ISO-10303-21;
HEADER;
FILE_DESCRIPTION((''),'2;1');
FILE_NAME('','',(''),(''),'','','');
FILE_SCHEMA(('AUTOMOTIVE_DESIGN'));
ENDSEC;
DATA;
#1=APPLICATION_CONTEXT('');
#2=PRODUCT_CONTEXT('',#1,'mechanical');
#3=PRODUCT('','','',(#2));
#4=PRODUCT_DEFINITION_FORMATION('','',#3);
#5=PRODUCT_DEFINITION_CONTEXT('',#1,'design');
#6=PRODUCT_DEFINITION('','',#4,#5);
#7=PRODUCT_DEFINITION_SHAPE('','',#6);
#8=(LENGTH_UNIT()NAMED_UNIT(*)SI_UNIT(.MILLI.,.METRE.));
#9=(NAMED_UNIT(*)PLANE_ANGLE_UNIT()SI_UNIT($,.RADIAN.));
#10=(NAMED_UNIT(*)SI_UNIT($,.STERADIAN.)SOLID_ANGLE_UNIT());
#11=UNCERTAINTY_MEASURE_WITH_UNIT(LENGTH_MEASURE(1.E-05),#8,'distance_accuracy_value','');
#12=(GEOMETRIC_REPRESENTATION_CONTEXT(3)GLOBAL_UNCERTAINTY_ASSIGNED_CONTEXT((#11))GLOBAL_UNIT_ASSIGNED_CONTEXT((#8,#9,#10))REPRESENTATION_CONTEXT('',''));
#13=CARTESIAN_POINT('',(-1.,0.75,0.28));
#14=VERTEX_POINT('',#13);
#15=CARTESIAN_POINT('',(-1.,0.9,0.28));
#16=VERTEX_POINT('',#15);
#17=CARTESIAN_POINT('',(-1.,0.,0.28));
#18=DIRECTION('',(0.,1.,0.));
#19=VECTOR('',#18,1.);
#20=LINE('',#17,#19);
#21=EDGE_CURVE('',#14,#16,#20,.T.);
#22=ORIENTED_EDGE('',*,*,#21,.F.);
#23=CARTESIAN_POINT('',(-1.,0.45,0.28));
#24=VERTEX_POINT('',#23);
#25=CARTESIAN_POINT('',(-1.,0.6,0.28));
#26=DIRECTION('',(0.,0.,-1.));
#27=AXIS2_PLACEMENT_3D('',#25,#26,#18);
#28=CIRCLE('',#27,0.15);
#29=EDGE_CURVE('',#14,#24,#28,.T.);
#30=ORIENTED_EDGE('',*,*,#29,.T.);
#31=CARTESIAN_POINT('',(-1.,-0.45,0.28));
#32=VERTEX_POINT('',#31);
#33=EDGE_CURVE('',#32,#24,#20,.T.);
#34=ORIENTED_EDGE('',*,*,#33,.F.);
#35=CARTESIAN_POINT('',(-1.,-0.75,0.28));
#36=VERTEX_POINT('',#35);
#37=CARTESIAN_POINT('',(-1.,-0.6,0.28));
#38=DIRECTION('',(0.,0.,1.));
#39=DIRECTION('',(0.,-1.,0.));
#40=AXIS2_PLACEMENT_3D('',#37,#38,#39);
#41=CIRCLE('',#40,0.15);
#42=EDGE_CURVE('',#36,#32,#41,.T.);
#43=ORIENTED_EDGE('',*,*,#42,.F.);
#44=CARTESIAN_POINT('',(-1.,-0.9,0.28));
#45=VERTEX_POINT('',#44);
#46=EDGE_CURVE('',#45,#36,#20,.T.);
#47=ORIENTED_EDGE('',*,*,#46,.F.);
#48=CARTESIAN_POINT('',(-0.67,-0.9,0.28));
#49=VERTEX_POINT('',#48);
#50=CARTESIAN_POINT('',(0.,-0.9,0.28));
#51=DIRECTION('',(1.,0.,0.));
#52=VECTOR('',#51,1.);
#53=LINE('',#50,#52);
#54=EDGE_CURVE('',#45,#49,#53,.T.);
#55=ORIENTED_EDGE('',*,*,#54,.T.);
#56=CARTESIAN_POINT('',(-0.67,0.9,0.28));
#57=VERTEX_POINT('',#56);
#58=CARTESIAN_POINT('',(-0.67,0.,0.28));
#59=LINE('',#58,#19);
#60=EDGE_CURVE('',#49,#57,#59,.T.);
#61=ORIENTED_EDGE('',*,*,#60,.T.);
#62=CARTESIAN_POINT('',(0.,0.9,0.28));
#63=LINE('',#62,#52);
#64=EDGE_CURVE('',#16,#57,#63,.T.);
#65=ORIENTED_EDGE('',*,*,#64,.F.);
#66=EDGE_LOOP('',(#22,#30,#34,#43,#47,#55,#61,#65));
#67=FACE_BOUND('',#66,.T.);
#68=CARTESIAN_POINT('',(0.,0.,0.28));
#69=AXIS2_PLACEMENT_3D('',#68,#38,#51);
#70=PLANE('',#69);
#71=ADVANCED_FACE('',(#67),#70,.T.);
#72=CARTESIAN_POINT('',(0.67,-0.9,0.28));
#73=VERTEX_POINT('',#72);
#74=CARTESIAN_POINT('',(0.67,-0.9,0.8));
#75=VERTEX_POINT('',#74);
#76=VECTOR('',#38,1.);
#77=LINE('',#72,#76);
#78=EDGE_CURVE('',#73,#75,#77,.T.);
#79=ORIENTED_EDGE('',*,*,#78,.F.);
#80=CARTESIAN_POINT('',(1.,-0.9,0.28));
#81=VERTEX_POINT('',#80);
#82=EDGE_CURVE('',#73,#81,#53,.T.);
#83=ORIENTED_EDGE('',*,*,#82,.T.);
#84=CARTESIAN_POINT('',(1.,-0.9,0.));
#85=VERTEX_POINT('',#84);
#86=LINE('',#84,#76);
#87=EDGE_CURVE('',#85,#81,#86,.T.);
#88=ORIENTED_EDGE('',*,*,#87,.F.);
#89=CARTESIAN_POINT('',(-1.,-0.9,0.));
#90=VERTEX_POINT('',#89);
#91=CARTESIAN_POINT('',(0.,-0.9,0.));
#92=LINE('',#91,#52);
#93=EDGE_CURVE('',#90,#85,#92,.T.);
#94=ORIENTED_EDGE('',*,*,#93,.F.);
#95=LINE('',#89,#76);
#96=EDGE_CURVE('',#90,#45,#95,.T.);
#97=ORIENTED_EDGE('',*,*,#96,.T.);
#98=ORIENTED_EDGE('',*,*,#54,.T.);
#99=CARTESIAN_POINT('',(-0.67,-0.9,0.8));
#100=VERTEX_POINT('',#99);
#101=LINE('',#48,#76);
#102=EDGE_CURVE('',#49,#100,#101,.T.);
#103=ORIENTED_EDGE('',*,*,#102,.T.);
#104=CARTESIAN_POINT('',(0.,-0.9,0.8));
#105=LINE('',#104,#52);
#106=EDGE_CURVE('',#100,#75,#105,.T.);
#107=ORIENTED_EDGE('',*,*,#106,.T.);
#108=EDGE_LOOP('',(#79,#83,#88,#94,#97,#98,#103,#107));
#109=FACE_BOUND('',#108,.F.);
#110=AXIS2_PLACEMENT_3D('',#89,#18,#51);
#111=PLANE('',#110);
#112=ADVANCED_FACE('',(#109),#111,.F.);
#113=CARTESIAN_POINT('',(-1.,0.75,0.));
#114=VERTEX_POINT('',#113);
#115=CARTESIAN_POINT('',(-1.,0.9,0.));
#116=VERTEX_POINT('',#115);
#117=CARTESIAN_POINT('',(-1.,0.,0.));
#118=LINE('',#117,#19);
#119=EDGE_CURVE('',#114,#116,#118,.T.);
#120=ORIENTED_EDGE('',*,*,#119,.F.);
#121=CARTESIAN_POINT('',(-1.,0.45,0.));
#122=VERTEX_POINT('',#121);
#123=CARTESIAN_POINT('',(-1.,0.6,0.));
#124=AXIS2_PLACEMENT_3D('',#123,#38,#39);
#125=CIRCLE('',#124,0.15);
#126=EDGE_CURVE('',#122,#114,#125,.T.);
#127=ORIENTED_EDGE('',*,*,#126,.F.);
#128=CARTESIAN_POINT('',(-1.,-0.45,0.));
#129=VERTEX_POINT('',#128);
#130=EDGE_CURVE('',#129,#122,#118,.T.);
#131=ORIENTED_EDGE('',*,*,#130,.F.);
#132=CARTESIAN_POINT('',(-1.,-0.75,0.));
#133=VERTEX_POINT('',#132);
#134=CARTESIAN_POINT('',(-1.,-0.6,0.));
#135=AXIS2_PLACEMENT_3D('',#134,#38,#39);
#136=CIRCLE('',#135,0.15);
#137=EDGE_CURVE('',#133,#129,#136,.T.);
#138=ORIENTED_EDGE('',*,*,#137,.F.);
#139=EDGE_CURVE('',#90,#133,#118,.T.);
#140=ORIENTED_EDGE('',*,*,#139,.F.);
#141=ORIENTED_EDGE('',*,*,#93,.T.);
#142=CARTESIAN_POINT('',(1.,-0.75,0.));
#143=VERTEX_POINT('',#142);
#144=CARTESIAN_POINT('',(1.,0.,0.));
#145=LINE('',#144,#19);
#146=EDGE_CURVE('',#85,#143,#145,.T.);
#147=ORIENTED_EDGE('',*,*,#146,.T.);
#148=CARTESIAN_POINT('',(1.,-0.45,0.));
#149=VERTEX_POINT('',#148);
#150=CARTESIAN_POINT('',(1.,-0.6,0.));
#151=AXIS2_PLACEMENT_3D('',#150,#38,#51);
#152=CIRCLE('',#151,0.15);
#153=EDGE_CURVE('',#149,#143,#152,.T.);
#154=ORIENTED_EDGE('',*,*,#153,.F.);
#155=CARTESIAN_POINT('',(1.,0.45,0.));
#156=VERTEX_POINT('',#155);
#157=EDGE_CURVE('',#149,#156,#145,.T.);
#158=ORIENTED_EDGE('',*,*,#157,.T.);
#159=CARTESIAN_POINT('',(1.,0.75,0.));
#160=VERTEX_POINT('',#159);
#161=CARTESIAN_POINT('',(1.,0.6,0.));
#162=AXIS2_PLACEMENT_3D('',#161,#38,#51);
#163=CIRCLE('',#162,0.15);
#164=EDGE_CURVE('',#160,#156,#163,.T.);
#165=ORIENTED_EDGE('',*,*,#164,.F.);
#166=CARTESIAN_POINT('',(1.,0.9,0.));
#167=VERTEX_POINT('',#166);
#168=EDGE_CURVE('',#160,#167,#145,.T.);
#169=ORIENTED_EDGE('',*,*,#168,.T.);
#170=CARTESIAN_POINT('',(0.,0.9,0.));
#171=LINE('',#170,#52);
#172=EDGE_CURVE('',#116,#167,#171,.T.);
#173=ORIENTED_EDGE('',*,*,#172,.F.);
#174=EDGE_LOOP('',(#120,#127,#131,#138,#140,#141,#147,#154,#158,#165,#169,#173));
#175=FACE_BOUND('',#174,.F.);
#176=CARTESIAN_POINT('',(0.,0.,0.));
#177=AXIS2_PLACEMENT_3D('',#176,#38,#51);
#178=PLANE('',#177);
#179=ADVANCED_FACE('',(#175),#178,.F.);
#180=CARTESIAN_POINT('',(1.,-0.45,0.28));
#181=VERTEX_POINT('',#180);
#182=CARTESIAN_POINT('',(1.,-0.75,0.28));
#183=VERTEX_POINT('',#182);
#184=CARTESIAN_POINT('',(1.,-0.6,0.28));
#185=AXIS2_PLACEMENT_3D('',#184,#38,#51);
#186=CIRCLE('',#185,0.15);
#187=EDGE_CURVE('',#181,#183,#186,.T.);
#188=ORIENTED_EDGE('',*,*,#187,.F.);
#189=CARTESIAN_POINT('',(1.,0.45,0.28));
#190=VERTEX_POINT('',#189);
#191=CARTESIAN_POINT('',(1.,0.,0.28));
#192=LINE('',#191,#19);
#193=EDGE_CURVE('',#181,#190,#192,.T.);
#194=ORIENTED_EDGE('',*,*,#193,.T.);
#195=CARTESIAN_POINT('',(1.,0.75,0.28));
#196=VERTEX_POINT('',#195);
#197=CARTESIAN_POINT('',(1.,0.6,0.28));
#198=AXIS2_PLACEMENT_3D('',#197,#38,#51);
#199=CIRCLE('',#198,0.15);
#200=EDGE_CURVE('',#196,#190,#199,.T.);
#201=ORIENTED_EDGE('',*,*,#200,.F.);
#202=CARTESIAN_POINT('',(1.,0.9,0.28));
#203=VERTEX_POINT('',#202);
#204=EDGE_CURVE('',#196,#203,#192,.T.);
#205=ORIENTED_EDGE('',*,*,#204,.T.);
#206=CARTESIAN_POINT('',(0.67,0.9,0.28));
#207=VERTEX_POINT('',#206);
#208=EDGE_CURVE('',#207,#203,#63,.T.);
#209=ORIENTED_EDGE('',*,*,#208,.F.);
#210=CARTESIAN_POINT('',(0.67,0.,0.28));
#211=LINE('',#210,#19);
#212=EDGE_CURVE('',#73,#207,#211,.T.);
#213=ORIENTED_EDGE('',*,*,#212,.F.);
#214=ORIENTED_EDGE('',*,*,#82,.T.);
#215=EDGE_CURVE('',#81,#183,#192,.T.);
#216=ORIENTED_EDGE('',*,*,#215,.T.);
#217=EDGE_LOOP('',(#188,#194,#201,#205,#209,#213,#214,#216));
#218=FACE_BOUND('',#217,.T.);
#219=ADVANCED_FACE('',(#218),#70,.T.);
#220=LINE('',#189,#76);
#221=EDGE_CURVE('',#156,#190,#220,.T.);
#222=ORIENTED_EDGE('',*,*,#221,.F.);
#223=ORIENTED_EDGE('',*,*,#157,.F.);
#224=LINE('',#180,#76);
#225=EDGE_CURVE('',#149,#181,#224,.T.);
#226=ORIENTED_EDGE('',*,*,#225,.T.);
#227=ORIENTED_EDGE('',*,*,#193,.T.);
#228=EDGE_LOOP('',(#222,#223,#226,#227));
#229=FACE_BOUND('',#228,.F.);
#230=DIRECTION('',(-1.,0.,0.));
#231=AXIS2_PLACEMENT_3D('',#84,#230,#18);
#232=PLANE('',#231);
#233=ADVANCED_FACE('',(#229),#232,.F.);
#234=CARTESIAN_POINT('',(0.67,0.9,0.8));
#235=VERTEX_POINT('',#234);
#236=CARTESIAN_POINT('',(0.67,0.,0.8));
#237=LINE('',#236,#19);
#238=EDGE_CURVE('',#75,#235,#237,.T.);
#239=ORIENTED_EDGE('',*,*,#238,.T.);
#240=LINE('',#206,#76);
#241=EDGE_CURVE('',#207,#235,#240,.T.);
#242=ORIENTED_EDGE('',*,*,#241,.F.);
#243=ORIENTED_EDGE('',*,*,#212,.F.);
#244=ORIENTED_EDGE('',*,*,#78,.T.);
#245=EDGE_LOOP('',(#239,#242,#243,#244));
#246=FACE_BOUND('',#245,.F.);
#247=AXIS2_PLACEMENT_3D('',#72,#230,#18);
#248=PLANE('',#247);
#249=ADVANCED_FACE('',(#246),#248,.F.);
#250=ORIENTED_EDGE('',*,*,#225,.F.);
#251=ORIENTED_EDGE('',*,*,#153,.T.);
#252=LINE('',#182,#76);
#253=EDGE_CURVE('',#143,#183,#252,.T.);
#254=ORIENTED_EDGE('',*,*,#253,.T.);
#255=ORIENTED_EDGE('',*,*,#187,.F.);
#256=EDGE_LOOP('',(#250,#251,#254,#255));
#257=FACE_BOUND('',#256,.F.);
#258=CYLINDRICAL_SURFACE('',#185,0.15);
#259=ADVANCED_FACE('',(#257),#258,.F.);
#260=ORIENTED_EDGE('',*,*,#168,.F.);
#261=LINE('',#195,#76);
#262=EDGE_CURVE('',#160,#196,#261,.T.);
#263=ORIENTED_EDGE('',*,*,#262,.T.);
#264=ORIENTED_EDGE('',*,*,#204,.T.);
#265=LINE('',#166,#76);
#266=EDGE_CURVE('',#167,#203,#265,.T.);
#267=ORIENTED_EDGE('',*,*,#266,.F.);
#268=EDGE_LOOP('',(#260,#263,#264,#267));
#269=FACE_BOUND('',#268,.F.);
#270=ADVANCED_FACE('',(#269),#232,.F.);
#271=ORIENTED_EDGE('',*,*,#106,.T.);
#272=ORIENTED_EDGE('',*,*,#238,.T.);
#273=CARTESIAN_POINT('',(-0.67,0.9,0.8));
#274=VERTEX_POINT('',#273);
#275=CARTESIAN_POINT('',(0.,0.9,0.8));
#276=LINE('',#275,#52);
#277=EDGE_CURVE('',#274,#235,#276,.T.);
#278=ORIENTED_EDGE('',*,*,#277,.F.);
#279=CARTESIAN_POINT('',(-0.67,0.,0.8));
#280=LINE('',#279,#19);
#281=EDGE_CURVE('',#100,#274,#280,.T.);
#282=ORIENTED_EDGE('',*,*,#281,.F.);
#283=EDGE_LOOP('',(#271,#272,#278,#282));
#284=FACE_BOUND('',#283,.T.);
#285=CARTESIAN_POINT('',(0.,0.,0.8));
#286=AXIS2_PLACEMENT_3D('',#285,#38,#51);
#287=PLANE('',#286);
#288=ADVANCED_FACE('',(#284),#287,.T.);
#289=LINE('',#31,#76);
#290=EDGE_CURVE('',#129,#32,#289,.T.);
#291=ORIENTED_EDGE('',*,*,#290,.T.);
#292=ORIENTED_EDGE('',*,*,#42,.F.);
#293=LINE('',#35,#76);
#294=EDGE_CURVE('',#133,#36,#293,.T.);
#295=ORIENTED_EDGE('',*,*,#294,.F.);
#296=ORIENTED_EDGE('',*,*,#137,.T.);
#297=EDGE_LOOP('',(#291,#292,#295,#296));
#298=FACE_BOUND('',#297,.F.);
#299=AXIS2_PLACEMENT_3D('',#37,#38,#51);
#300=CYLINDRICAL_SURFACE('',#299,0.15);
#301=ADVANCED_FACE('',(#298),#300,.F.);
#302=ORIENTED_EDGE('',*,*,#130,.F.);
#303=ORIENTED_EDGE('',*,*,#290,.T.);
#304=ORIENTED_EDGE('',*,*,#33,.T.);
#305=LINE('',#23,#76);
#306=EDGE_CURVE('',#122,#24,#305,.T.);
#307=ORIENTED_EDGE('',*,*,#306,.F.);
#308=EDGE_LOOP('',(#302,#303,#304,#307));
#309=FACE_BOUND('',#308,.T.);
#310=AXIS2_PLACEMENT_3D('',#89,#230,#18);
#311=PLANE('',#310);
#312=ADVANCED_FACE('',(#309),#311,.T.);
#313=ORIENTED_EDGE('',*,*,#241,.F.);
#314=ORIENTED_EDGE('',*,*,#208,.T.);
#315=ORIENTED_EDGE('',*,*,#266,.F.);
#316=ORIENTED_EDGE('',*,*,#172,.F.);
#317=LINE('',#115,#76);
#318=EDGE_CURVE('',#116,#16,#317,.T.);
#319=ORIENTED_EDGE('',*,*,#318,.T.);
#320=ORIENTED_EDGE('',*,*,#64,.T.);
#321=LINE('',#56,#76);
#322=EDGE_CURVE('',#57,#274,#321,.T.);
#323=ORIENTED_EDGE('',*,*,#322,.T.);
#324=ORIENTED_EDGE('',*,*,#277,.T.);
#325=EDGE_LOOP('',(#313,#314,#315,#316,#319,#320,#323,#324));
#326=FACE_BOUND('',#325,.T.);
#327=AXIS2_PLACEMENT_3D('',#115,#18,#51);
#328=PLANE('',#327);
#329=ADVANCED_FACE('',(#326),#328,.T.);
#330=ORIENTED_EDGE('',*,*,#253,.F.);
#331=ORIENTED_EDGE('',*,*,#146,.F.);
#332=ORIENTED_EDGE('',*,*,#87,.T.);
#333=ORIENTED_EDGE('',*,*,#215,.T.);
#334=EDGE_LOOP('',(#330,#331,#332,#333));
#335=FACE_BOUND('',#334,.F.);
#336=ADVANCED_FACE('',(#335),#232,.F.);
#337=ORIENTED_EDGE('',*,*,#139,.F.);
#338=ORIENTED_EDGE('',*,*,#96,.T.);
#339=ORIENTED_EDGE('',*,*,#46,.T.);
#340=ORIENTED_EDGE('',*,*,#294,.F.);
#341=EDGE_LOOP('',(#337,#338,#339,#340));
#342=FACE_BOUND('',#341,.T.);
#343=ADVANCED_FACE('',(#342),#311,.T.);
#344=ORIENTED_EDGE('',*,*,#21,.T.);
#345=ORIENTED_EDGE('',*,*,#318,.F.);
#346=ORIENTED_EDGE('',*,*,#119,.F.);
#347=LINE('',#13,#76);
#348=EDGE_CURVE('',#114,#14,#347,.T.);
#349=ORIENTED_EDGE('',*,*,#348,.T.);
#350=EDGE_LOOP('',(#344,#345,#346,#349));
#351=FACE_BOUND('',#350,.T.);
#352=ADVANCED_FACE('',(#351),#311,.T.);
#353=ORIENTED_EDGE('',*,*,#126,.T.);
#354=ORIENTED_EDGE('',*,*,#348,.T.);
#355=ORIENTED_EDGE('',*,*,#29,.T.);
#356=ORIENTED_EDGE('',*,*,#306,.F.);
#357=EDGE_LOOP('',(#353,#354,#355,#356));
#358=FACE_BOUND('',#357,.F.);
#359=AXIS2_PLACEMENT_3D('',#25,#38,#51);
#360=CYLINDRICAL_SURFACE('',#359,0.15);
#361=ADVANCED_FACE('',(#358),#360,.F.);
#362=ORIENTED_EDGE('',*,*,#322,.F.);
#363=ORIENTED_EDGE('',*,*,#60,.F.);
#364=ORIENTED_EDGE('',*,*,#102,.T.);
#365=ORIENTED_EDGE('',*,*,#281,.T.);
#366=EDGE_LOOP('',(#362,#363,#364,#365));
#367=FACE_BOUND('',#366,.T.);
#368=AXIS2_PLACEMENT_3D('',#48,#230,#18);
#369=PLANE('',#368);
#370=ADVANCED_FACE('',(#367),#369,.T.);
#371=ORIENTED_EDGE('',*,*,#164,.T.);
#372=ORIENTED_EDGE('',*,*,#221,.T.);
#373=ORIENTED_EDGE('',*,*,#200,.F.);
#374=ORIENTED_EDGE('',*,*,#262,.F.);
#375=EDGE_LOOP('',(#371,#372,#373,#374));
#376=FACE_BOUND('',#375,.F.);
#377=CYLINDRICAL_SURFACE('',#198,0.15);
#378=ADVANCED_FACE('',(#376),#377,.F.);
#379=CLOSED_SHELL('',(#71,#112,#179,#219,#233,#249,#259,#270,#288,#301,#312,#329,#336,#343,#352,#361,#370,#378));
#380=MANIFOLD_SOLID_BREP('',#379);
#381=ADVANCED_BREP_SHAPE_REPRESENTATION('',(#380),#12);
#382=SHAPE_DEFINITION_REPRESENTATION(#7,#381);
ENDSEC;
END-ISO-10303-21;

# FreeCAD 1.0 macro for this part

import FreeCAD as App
import Part
import Sketcher

V = App.Vector
Q = App.Units.Quantity

doc = App.newDocument("Part")
body = doc.addObject("PartDesign::Body", "Body")

sketch1 = body.newObject("Sketcher::SketchObject", "Sketch")
sketch1.AttachmentSupport = (doc.getObject("XY_Plane"), [""])
sketch1.MapMode = "FlatFace"
sketch1.addGeometry(Part.LineSegment(V(-1, 0.9, 0), V(-1, -0.9, 0)), False)
sketch1.addGeometry(Part.LineSegment(V(-1, -0.9, 0), V(1, -0.9, 0)), False)
sketch1.addGeometry(Part.LineSegment(V(1, -0.9, 0), V(1, 0.9, 0)), False)
sketch1.addGeometry(Part.LineSegment(V(1, 0.9, 0), V(-1, 0.9, 0)), False)
sketch1.addConstraint(Sketcher.Constraint("Coincident", 0, 2, 1, 1))
sketch1.addConstraint(Sketcher.Constraint("Coincident", 1, 2, 2, 1))
sketch1.addConstraint(Sketcher.Constraint("Coincident", 2, 2, 3, 1))
sketch1.addConstraint(Sketcher.Constraint("Coincident", 3, 2, 0, 1))
sketch1.addConstraint(Sketcher.Constraint("Vertical", 0))
sketch1.addConstraint(Sketcher.Constraint("Horizontal", 1))
sketch1.addConstraint(Sketcher.Constraint("Vertical", 2))
sketch1.addConstraint(Sketcher.Constraint("Horizontal", 3))
sketch1.addConstraint(Sketcher.Constraint("Symmetric", 0, 2, 2, 2, -1, 1))
sketch1.addConstraint(Sketcher.Constraint("DistanceX", 1, 1, 1, 2, Q("2 mm")))
sketch1.addConstraint(Sketcher.Constraint("DistanceY", 0, 2, 0, 1, Q("1.8 mm")))
pad1 = body.newObject("PartDesign::Pad", "Pad")
pad1.Profile = sketch1
pad1.Length = 0.28

sketch2 = body.newObject("Sketcher::SketchObject", "Sketch001")
sketch2.AttachmentSupport = (doc.getObject("XY_Plane"), [""])
sketch2.MapMode = "FlatFace"
sketch2.AttachmentOffset = App.Placement(V(0, 0, 0.28), App.Rotation())
sketch2.addGeometry(Part.LineSegment(V(-0.7, 0.9, 0), V(-0.7, -0.9, 0)), False)
sketch2.addGeometry(Part.LineSegment(V(-0.7, -0.9, 0), V(0.7, -0.9, 0)), False)
sketch2.addGeometry(Part.LineSegment(V(0.7, -0.9, 0), V(0.7, 0.9, 0)), False)
sketch2.addGeometry(Part.LineSegment(V(0.7, 0.9, 0), V(-0.7, 0.9, 0)), False)
sketch2.addConstraint(Sketcher.Constraint("Coincident", 0, 2, 1, 1))
sketch2.addConstraint(Sketcher.Constraint("Coincident", 1, 2, 2, 1))
sketch2.addConstraint(Sketcher.Constraint("Coincident", 2, 2, 3, 1))
sketch2.addConstraint(Sketcher.Constraint("Coincident", 3, 2, 0, 1))
sketch2.addConstraint(Sketcher.Constraint("Vertical", 0))
sketch2.addConstraint(Sketcher.Constraint("Horizontal", 1))
sketch2.addConstraint(Sketcher.Constraint("Vertical", 2))
sketch2.addConstraint(Sketcher.Constraint("Horizontal", 3))
sketch2.addConstraint(Sketcher.Constraint("Symmetric", 0, 2, 2, 2, -1, 1))
sketch2.addConstraint(Sketcher.Constraint("DistanceY", 0, 2, 0, 1, Q("1.8 mm")))
sketch2.addConstraint(Sketcher.Constraint("DistanceX", 1, 1, 1, 2, Q("1.34 mm")))
pad2 = body.newObject("PartDesign::Pad", "Pad001")
pad2.Profile = sketch2
pad2.Length = 0.52

sketch3 = body.newObject("Sketcher::SketchObject", "Sketch002")
sketch3.AttachmentSupport = (doc.getObject("XY_Plane"), [""])
sketch3.MapMode = "FlatFace"
sketch3.AttachmentOffset = App.Placement(V(0, 0, 0.28), App.Rotation())
sketch3.addGeometry(Part.Circle(V(1, 0.6, 0), V(0, 0, 1), 0.15), False)
sketch3.addGeometry(Part.Circle(V(1, -0.6, 0), V(0, 0, 1), 0.15), False)
sketch3.addGeometry(Part.Circle(V(-1, 0.6, 0), V(0, 0, 1), 0.15), False)
sketch3.addGeometry(Part.Circle(V(-1, -0.6, 0), V(0, 0, 1), 0.15), False)
sketch3.addConstraint(Sketcher.Constraint("Equal", 0, 1))
sketch3.addConstraint(Sketcher.Constraint("Equal", 1, 2))
sketch3.addConstraint(Sketcher.Constraint("Equal", 2, 3))
sketch3.addConstraint(Sketcher.Constraint("Symmetric", 1, 3, 2, 3, -1, 1))
sketch3.addConstraint(Sketcher.Constraint("Symmetric", 0, 3, 3, 3, -1, 1))
sketch3.addConstraint(Sketcher.Constraint("Symmetric", 0, 3, 2, 3, -2))
sketch3.addConstraint(Sketcher.Constraint("Diameter", 0, Q("0.3 mm")))
sketch3.addConstraint(Sketcher.Constraint("DistanceX", -1, 1, 0, 3, Q("1 mm")))
sketch3.addConstraint(Sketcher.Constraint("DistanceY", -1, 1, 0, 3, Q("0.6 mm")))
pocket1 = body.newObject("PartDesign::Pocket", "Pocket")
pocket1.Profile = sketch3
pocket1.Length = 1

doc.recompute()
